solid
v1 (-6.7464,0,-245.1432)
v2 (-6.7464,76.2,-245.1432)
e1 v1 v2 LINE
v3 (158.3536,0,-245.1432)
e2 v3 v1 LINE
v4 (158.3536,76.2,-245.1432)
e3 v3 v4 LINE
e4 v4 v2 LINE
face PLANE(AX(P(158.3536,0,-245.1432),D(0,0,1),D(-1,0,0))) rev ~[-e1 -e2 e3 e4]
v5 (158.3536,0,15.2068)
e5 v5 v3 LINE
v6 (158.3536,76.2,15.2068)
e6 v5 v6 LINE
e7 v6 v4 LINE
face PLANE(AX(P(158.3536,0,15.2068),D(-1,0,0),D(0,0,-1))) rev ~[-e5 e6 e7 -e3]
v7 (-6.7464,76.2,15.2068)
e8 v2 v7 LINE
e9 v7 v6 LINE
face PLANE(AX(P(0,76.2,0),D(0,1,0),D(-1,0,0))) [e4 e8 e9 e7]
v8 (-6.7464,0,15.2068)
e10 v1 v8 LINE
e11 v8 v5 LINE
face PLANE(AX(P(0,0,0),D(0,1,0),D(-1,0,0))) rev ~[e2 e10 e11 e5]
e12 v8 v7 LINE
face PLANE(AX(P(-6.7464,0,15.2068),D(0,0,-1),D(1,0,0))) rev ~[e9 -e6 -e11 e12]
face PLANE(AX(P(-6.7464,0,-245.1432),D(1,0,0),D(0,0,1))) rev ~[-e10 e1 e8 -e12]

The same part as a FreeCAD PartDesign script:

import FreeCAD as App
import Part
import Sketcher
Q = App.Units.Quantity

doc = App.newDocument("Part")
params = doc.addObject("Spreadsheet::Sheet", "Params")
for row, (alias, value) in enumerate([
    ("sketch1_width", "6.5 in"),
    ("sketch1_height", "10.25 in"),
    ("pad1_length", "3 in"),
], start=1):
    params.set(f"A{row}", alias)
    params.set(f"B{row}", "=" + value)
    params.setAlias(f"B{row}", alias)

body = doc.addObject("PartDesign::Body", "Body")

# Sketch on XZ plane
sketch1 = body.newObject("Sketcher::SketchObject", "Sketch")
sketch1.AttachmentSupport = (doc.getObject("XZ_Plane"), [""])
sketch1.MapMode = "FlatFace"
sketch1.addGeometry([
    Part.LineSegment(App.Vector(-6.7464, -245.1432, 0), App.Vector(-6.7464, 15.2068, 0)),
    Part.LineSegment(App.Vector(-6.7464, 15.2068, 0), App.Vector(158.3536, 15.2068, 0)),
    Part.LineSegment(App.Vector(158.3536, 15.2068, 0), App.Vector(158.3536, -245.1432, 0)),
    Part.LineSegment(App.Vector(158.3536, -245.1432, 0), App.Vector(-6.7464, -245.1432, 0)),
], False)
sketch1.addConstraint([
    Sketcher.Constraint("Coincident", 0, 2, 1, 1),
    Sketcher.Constraint("Coincident", 1, 2, 2, 1),
    Sketcher.Constraint("Coincident", 2, 2, 3, 1),
    Sketcher.Constraint("Coincident", 3, 2, 0, 1),
    Sketcher.Constraint("Vertical", 0),
    Sketcher.Constraint("Horizontal", 1),
    Sketcher.Constraint("Vertical", 2),
    Sketcher.Constraint("Horizontal", 3),
    Sketcher.Constraint("DistanceX", 1, 1, 1, 2, Q("6.5 in")),
    Sketcher.Constraint("DistanceY", 0, 1, 0, 2, Q("10.25 in")),
    Sketcher.Constraint("DistanceX", 0, 2, -1, 1, Q("0.2656 in")),
    Sketcher.Constraint("DistanceY", -1, 1, 0, 2, Q("0.5987 in")),
])
sketch1.setExpression("Constraints[8]", "Params.sketch1_width")
sketch1.setExpression("Constraints[9]", "Params.sketch1_height")
pad1 = body.newObject("PartDesign::Pad", "Pad")
pad1.Profile = sketch1
pad1.setExpression("Length", "Params.pad1_length")
pad1.Reversed = True

doc.recompute()
